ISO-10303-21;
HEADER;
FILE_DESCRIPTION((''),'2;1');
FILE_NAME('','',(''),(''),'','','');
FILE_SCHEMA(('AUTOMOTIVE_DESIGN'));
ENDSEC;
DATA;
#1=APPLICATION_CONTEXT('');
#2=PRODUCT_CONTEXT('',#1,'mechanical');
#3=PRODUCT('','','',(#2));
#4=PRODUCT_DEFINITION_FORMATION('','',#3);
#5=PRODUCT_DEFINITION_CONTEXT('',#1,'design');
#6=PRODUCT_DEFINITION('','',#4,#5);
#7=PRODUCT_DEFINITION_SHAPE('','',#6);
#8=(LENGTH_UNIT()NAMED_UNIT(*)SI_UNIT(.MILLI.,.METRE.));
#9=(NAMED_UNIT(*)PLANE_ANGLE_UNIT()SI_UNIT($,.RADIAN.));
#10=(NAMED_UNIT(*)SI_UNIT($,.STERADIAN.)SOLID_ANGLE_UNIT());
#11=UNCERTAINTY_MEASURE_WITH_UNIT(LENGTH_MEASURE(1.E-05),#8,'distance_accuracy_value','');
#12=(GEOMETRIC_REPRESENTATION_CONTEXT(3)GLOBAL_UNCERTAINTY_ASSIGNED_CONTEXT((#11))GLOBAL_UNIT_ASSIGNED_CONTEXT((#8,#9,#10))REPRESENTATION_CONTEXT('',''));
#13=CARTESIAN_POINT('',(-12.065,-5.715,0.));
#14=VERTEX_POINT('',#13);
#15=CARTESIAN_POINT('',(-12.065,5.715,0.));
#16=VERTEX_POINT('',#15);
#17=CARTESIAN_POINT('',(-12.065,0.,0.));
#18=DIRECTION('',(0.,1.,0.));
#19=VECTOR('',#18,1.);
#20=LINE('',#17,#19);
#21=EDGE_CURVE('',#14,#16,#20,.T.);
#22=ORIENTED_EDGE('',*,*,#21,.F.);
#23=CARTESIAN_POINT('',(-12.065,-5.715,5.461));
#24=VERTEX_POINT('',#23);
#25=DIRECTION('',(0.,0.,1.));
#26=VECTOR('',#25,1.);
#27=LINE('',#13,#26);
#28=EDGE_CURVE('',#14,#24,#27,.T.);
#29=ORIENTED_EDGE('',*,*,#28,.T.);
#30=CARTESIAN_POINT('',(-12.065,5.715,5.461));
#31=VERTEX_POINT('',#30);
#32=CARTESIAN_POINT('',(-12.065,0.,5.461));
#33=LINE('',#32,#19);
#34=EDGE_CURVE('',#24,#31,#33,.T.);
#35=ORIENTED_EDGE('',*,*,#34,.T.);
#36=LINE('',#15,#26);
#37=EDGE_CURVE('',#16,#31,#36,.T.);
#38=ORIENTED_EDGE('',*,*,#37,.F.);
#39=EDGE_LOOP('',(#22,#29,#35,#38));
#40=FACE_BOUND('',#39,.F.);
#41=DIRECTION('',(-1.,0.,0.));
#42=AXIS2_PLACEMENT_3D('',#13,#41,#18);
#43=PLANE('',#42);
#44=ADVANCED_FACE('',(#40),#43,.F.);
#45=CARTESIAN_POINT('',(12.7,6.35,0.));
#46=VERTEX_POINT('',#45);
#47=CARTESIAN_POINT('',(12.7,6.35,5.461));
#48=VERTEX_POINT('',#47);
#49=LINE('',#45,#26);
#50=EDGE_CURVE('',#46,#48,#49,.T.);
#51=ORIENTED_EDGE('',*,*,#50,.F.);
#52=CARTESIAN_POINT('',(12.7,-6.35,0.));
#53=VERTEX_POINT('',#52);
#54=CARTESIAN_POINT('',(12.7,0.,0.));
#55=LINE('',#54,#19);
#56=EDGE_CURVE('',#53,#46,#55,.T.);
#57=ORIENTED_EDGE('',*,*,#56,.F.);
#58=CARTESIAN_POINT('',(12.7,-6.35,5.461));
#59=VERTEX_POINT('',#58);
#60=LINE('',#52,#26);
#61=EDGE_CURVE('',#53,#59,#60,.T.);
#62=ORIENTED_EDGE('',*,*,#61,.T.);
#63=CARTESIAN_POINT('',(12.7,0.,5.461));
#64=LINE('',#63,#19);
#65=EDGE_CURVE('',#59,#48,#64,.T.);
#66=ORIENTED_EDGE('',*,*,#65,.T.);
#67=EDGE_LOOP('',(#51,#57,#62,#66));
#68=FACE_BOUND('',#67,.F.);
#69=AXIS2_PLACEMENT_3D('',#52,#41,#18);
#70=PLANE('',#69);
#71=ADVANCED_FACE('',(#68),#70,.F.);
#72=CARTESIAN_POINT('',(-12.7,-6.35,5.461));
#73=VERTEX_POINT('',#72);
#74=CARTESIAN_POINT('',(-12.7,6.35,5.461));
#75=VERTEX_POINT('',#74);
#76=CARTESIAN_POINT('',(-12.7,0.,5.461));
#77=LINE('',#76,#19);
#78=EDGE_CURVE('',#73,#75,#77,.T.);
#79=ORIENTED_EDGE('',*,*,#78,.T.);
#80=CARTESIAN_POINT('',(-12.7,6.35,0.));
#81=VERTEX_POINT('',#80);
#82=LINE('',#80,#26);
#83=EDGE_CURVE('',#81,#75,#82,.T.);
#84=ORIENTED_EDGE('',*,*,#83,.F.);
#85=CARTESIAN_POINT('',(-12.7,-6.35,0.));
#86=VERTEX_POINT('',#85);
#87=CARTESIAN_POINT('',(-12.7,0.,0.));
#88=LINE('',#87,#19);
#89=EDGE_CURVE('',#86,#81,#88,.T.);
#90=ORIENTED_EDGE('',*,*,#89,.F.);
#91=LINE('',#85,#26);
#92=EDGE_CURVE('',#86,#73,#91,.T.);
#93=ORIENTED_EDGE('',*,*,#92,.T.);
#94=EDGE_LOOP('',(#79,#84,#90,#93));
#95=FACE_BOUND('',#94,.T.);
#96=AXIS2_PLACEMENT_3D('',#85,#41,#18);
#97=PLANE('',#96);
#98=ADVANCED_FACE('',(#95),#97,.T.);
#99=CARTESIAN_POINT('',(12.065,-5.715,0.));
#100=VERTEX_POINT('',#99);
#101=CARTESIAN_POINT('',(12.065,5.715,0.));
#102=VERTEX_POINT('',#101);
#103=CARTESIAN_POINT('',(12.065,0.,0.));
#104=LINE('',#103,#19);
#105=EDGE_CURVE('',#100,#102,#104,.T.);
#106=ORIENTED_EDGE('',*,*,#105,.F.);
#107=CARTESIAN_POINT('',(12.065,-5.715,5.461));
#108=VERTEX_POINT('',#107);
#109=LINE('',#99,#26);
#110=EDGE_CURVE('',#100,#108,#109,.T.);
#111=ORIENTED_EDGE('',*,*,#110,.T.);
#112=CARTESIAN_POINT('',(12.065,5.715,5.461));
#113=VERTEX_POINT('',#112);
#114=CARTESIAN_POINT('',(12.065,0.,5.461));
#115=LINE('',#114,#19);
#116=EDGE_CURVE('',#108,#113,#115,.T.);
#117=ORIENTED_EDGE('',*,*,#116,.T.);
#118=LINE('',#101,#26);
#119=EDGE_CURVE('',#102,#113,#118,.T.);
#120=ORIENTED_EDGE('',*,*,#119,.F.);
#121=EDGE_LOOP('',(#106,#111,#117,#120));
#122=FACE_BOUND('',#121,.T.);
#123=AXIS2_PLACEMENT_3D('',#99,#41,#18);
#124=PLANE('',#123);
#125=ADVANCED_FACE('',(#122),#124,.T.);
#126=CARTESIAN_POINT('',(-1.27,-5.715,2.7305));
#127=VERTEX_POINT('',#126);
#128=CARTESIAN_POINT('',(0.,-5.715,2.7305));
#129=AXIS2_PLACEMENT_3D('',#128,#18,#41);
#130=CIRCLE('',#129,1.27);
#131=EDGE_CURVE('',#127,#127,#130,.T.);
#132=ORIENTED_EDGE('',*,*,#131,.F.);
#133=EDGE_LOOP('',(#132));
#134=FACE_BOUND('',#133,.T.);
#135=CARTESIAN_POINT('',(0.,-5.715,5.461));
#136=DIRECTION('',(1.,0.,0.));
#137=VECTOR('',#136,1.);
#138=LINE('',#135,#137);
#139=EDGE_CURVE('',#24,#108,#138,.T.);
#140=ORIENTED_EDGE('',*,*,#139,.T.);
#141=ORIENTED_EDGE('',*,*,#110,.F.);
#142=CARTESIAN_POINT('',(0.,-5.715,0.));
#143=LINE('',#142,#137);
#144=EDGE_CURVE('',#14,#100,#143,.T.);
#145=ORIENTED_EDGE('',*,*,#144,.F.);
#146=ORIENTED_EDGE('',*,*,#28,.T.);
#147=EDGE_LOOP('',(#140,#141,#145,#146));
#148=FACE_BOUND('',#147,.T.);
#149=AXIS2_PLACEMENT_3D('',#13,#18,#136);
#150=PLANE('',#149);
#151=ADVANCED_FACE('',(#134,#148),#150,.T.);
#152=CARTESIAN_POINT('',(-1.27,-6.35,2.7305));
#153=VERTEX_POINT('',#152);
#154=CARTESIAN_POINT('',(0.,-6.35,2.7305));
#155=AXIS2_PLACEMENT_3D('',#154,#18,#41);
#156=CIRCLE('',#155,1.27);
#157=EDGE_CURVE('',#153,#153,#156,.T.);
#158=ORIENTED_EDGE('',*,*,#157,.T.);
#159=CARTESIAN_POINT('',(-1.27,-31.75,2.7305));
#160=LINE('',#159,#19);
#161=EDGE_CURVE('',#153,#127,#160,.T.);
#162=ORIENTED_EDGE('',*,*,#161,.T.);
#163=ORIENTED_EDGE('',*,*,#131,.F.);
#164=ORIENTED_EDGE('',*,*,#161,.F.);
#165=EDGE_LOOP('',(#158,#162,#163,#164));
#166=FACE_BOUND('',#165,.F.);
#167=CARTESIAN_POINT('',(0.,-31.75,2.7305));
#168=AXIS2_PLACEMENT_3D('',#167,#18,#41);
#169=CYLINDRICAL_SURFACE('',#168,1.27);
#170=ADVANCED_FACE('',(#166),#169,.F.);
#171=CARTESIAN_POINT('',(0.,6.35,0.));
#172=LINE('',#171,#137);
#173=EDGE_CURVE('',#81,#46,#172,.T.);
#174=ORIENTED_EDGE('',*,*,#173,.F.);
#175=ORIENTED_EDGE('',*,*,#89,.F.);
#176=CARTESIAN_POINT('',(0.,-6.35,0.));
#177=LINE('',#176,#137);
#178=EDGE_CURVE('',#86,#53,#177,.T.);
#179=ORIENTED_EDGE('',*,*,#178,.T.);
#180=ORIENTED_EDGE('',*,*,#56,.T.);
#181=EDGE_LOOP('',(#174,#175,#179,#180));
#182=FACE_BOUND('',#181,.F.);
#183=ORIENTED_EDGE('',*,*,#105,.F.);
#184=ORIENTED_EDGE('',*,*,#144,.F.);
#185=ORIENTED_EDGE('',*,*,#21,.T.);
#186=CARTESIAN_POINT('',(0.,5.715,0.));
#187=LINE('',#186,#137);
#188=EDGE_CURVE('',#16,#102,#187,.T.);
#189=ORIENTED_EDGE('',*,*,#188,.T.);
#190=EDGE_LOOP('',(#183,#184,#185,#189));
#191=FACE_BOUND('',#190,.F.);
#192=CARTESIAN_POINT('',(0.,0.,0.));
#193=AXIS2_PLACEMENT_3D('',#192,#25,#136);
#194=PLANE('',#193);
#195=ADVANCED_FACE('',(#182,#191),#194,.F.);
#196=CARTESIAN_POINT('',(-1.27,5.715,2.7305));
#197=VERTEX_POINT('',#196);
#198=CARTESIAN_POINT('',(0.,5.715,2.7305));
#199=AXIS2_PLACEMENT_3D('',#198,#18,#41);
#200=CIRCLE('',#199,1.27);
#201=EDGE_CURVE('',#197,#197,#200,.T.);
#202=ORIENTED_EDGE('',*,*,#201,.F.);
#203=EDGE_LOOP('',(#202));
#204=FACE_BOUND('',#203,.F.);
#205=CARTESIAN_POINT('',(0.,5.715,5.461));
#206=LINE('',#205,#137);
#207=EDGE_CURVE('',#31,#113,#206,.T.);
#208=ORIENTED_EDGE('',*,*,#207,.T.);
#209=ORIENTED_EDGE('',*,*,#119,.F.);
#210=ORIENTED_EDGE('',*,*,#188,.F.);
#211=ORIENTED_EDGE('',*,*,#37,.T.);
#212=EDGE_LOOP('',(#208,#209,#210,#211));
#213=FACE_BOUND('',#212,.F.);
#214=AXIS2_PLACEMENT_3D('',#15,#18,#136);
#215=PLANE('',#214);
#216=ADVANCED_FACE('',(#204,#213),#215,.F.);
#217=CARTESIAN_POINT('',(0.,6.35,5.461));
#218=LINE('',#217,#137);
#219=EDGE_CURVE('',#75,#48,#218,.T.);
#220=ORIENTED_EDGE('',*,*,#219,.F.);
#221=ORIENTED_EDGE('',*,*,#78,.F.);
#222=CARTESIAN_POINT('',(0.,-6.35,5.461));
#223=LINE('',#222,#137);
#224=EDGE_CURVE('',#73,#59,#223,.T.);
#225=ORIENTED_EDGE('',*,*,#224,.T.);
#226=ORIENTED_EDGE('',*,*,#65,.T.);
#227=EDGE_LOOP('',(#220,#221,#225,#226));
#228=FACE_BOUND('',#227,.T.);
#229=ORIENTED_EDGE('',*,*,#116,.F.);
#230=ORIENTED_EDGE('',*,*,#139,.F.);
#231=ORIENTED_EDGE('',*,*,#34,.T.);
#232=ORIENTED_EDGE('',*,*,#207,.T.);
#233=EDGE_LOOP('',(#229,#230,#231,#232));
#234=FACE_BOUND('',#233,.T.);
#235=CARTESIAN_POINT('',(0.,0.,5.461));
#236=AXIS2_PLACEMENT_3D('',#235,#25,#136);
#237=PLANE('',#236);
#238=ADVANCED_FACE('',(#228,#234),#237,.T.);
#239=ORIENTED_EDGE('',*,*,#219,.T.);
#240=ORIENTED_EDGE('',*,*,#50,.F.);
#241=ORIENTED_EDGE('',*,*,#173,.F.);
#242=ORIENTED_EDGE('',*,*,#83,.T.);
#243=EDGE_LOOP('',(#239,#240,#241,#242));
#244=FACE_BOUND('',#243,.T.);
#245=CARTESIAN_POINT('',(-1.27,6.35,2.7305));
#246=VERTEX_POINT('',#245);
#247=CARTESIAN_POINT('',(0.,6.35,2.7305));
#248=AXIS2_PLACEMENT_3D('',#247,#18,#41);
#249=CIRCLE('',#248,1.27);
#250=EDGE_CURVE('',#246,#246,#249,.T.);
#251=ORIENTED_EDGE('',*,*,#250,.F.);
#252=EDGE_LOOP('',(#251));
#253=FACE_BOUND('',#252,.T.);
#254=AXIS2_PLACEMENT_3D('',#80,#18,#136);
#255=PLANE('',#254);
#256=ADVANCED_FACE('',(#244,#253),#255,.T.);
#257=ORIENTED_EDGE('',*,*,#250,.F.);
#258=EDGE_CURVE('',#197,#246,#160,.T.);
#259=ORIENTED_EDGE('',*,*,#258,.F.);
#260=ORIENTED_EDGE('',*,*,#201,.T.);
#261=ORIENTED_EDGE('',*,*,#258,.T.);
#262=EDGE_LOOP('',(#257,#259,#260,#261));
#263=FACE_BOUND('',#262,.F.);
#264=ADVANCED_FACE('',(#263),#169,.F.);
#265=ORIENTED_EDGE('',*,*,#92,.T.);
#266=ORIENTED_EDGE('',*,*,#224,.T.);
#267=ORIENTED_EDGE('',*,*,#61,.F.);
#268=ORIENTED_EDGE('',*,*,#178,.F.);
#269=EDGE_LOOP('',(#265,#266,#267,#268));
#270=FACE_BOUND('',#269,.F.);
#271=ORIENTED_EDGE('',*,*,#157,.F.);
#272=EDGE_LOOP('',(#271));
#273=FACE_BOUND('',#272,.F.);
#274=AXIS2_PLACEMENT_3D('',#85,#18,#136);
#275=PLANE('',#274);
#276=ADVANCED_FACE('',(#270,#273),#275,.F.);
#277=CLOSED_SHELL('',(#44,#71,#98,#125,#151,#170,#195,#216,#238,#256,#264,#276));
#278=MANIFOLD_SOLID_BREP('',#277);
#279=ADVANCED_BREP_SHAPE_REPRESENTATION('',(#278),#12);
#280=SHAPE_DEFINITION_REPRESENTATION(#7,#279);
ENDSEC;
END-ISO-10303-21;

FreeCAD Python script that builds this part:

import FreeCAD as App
import Part
import Sketcher
from FreeCAD import Vector
Q = App.Units.Quantity


def add_polygon(sketch, points):
    """Adds a closed chain of lines whose ends are joined by coincident constraints."""
    first, n = sketch.GeometryCount, len(points)
    for a, b in zip(points, points[1:] + points[:1]):
        sketch.addGeometry(Part.LineSegment(App.Vector(*a, 0), App.Vector(*b, 0)), False)
    for i in range(n):
        sketch.addConstraint(Sketcher.Constraint("Coincident", first + i, 2, first + (i + 1) % n, 1))

doc = App.newDocument("Part")
body = doc.addObject("PartDesign::Body", "Body")

sketch1 = doc.addObject("Sketcher::SketchObject", "Sketch")
body.addObject(sketch1)
sketch1.AttachmentSupport = (doc.XY_Plane, [""])
sketch1.MapMode = "FlatFace"
add_polygon(sketch1, [(-13, 6), (-13, -6), (13, -6), (13, 6)])
add_polygon(sketch1, [(12, -6), (-12, -6), (-12, 6), (12, 6)])
sketch1.addConstraint(Sketcher.Constraint("Vertical", 0))
sketch1.addConstraint(Sketcher.Constraint("Horizontal", 1))
sketch1.addConstraint(Sketcher.Constraint("Vertical", 2))
sketch1.addConstraint(Sketcher.Constraint("Horizontal", 3))
sketch1.addConstraint(Sketcher.Constraint("Horizontal", 4))
sketch1.addConstraint(Sketcher.Constraint("Vertical", 5))
sketch1.addConstraint(Sketcher.Constraint("Horizontal", 6))
sketch1.addConstraint(Sketcher.Constraint("Vertical", 7))
sketch1.addConstraint(Sketcher.Constraint("Symmetric", 0, 2, 2, 2, -1, 1))
sketch1.addConstraint(Sketcher.Constraint("Symmetric", 4, 2, 6, 2, -1, 1))
sketch1.addConstraint(Sketcher.Constraint("DistanceX", 1, 1, 1, 2, Q("1 in")))
sketch1.addConstraint(Sketcher.Constraint("DistanceY", 0, 2, 0, 1, Q("0.5 in")))
sketch1.addConstraint(Sketcher.Constraint("DistanceX", 4, 2, 4, 1, Q("0.95 in")))
sketch1.addConstraint(Sketcher.Constraint("DistanceY", 5, 1, 5, 2, Q("0.45 in")))
pad1 = doc.addObject("PartDesign::Pad", "Pad")
body.addObject(pad1)
pad1.Profile = sketch1
pad1.Length = Q("0.215 in")

sketch2 = doc.addObject("Sketcher::SketchObject", "Sketch001")
body.addObject(sketch2)
sketch2.AttachmentSupport = (doc.XZ_Plane, [""])
sketch2.MapMode = "FlatFace"
sketch2.AttachmentOffset = App.Placement(Vector(0, 0, 0.25 * 25.4), App.Rotation())
sketch2.addGeometry(Part.Circle(Vector(0, 2.7, 0), Vector(0, 0, 1), 1.3), False)
sketch2.addConstraint(Sketcher.Constraint("PointOnObject", 0, 3, -2))
sketch2.addConstraint(Sketcher.Constraint("Diameter", 0, Q("0.1 in")))
sketch2.addConstraint(Sketcher.Constraint("DistanceY", -1, 1, 0, 3, Q("0.1075 in")))
doc.recompute()
hole = doc.addObject("PartDesign::Hole", "Hole")
body.addObject(hole)
hole.Profile = sketch2
hole.ThreadType = "None"
hole.Diameter = Q("0.1 in")
hole.DepthType = "Dimension"
hole.Depth = Q("1 in")
hole.DrillPoint = "Flat"

doc.recompute()
